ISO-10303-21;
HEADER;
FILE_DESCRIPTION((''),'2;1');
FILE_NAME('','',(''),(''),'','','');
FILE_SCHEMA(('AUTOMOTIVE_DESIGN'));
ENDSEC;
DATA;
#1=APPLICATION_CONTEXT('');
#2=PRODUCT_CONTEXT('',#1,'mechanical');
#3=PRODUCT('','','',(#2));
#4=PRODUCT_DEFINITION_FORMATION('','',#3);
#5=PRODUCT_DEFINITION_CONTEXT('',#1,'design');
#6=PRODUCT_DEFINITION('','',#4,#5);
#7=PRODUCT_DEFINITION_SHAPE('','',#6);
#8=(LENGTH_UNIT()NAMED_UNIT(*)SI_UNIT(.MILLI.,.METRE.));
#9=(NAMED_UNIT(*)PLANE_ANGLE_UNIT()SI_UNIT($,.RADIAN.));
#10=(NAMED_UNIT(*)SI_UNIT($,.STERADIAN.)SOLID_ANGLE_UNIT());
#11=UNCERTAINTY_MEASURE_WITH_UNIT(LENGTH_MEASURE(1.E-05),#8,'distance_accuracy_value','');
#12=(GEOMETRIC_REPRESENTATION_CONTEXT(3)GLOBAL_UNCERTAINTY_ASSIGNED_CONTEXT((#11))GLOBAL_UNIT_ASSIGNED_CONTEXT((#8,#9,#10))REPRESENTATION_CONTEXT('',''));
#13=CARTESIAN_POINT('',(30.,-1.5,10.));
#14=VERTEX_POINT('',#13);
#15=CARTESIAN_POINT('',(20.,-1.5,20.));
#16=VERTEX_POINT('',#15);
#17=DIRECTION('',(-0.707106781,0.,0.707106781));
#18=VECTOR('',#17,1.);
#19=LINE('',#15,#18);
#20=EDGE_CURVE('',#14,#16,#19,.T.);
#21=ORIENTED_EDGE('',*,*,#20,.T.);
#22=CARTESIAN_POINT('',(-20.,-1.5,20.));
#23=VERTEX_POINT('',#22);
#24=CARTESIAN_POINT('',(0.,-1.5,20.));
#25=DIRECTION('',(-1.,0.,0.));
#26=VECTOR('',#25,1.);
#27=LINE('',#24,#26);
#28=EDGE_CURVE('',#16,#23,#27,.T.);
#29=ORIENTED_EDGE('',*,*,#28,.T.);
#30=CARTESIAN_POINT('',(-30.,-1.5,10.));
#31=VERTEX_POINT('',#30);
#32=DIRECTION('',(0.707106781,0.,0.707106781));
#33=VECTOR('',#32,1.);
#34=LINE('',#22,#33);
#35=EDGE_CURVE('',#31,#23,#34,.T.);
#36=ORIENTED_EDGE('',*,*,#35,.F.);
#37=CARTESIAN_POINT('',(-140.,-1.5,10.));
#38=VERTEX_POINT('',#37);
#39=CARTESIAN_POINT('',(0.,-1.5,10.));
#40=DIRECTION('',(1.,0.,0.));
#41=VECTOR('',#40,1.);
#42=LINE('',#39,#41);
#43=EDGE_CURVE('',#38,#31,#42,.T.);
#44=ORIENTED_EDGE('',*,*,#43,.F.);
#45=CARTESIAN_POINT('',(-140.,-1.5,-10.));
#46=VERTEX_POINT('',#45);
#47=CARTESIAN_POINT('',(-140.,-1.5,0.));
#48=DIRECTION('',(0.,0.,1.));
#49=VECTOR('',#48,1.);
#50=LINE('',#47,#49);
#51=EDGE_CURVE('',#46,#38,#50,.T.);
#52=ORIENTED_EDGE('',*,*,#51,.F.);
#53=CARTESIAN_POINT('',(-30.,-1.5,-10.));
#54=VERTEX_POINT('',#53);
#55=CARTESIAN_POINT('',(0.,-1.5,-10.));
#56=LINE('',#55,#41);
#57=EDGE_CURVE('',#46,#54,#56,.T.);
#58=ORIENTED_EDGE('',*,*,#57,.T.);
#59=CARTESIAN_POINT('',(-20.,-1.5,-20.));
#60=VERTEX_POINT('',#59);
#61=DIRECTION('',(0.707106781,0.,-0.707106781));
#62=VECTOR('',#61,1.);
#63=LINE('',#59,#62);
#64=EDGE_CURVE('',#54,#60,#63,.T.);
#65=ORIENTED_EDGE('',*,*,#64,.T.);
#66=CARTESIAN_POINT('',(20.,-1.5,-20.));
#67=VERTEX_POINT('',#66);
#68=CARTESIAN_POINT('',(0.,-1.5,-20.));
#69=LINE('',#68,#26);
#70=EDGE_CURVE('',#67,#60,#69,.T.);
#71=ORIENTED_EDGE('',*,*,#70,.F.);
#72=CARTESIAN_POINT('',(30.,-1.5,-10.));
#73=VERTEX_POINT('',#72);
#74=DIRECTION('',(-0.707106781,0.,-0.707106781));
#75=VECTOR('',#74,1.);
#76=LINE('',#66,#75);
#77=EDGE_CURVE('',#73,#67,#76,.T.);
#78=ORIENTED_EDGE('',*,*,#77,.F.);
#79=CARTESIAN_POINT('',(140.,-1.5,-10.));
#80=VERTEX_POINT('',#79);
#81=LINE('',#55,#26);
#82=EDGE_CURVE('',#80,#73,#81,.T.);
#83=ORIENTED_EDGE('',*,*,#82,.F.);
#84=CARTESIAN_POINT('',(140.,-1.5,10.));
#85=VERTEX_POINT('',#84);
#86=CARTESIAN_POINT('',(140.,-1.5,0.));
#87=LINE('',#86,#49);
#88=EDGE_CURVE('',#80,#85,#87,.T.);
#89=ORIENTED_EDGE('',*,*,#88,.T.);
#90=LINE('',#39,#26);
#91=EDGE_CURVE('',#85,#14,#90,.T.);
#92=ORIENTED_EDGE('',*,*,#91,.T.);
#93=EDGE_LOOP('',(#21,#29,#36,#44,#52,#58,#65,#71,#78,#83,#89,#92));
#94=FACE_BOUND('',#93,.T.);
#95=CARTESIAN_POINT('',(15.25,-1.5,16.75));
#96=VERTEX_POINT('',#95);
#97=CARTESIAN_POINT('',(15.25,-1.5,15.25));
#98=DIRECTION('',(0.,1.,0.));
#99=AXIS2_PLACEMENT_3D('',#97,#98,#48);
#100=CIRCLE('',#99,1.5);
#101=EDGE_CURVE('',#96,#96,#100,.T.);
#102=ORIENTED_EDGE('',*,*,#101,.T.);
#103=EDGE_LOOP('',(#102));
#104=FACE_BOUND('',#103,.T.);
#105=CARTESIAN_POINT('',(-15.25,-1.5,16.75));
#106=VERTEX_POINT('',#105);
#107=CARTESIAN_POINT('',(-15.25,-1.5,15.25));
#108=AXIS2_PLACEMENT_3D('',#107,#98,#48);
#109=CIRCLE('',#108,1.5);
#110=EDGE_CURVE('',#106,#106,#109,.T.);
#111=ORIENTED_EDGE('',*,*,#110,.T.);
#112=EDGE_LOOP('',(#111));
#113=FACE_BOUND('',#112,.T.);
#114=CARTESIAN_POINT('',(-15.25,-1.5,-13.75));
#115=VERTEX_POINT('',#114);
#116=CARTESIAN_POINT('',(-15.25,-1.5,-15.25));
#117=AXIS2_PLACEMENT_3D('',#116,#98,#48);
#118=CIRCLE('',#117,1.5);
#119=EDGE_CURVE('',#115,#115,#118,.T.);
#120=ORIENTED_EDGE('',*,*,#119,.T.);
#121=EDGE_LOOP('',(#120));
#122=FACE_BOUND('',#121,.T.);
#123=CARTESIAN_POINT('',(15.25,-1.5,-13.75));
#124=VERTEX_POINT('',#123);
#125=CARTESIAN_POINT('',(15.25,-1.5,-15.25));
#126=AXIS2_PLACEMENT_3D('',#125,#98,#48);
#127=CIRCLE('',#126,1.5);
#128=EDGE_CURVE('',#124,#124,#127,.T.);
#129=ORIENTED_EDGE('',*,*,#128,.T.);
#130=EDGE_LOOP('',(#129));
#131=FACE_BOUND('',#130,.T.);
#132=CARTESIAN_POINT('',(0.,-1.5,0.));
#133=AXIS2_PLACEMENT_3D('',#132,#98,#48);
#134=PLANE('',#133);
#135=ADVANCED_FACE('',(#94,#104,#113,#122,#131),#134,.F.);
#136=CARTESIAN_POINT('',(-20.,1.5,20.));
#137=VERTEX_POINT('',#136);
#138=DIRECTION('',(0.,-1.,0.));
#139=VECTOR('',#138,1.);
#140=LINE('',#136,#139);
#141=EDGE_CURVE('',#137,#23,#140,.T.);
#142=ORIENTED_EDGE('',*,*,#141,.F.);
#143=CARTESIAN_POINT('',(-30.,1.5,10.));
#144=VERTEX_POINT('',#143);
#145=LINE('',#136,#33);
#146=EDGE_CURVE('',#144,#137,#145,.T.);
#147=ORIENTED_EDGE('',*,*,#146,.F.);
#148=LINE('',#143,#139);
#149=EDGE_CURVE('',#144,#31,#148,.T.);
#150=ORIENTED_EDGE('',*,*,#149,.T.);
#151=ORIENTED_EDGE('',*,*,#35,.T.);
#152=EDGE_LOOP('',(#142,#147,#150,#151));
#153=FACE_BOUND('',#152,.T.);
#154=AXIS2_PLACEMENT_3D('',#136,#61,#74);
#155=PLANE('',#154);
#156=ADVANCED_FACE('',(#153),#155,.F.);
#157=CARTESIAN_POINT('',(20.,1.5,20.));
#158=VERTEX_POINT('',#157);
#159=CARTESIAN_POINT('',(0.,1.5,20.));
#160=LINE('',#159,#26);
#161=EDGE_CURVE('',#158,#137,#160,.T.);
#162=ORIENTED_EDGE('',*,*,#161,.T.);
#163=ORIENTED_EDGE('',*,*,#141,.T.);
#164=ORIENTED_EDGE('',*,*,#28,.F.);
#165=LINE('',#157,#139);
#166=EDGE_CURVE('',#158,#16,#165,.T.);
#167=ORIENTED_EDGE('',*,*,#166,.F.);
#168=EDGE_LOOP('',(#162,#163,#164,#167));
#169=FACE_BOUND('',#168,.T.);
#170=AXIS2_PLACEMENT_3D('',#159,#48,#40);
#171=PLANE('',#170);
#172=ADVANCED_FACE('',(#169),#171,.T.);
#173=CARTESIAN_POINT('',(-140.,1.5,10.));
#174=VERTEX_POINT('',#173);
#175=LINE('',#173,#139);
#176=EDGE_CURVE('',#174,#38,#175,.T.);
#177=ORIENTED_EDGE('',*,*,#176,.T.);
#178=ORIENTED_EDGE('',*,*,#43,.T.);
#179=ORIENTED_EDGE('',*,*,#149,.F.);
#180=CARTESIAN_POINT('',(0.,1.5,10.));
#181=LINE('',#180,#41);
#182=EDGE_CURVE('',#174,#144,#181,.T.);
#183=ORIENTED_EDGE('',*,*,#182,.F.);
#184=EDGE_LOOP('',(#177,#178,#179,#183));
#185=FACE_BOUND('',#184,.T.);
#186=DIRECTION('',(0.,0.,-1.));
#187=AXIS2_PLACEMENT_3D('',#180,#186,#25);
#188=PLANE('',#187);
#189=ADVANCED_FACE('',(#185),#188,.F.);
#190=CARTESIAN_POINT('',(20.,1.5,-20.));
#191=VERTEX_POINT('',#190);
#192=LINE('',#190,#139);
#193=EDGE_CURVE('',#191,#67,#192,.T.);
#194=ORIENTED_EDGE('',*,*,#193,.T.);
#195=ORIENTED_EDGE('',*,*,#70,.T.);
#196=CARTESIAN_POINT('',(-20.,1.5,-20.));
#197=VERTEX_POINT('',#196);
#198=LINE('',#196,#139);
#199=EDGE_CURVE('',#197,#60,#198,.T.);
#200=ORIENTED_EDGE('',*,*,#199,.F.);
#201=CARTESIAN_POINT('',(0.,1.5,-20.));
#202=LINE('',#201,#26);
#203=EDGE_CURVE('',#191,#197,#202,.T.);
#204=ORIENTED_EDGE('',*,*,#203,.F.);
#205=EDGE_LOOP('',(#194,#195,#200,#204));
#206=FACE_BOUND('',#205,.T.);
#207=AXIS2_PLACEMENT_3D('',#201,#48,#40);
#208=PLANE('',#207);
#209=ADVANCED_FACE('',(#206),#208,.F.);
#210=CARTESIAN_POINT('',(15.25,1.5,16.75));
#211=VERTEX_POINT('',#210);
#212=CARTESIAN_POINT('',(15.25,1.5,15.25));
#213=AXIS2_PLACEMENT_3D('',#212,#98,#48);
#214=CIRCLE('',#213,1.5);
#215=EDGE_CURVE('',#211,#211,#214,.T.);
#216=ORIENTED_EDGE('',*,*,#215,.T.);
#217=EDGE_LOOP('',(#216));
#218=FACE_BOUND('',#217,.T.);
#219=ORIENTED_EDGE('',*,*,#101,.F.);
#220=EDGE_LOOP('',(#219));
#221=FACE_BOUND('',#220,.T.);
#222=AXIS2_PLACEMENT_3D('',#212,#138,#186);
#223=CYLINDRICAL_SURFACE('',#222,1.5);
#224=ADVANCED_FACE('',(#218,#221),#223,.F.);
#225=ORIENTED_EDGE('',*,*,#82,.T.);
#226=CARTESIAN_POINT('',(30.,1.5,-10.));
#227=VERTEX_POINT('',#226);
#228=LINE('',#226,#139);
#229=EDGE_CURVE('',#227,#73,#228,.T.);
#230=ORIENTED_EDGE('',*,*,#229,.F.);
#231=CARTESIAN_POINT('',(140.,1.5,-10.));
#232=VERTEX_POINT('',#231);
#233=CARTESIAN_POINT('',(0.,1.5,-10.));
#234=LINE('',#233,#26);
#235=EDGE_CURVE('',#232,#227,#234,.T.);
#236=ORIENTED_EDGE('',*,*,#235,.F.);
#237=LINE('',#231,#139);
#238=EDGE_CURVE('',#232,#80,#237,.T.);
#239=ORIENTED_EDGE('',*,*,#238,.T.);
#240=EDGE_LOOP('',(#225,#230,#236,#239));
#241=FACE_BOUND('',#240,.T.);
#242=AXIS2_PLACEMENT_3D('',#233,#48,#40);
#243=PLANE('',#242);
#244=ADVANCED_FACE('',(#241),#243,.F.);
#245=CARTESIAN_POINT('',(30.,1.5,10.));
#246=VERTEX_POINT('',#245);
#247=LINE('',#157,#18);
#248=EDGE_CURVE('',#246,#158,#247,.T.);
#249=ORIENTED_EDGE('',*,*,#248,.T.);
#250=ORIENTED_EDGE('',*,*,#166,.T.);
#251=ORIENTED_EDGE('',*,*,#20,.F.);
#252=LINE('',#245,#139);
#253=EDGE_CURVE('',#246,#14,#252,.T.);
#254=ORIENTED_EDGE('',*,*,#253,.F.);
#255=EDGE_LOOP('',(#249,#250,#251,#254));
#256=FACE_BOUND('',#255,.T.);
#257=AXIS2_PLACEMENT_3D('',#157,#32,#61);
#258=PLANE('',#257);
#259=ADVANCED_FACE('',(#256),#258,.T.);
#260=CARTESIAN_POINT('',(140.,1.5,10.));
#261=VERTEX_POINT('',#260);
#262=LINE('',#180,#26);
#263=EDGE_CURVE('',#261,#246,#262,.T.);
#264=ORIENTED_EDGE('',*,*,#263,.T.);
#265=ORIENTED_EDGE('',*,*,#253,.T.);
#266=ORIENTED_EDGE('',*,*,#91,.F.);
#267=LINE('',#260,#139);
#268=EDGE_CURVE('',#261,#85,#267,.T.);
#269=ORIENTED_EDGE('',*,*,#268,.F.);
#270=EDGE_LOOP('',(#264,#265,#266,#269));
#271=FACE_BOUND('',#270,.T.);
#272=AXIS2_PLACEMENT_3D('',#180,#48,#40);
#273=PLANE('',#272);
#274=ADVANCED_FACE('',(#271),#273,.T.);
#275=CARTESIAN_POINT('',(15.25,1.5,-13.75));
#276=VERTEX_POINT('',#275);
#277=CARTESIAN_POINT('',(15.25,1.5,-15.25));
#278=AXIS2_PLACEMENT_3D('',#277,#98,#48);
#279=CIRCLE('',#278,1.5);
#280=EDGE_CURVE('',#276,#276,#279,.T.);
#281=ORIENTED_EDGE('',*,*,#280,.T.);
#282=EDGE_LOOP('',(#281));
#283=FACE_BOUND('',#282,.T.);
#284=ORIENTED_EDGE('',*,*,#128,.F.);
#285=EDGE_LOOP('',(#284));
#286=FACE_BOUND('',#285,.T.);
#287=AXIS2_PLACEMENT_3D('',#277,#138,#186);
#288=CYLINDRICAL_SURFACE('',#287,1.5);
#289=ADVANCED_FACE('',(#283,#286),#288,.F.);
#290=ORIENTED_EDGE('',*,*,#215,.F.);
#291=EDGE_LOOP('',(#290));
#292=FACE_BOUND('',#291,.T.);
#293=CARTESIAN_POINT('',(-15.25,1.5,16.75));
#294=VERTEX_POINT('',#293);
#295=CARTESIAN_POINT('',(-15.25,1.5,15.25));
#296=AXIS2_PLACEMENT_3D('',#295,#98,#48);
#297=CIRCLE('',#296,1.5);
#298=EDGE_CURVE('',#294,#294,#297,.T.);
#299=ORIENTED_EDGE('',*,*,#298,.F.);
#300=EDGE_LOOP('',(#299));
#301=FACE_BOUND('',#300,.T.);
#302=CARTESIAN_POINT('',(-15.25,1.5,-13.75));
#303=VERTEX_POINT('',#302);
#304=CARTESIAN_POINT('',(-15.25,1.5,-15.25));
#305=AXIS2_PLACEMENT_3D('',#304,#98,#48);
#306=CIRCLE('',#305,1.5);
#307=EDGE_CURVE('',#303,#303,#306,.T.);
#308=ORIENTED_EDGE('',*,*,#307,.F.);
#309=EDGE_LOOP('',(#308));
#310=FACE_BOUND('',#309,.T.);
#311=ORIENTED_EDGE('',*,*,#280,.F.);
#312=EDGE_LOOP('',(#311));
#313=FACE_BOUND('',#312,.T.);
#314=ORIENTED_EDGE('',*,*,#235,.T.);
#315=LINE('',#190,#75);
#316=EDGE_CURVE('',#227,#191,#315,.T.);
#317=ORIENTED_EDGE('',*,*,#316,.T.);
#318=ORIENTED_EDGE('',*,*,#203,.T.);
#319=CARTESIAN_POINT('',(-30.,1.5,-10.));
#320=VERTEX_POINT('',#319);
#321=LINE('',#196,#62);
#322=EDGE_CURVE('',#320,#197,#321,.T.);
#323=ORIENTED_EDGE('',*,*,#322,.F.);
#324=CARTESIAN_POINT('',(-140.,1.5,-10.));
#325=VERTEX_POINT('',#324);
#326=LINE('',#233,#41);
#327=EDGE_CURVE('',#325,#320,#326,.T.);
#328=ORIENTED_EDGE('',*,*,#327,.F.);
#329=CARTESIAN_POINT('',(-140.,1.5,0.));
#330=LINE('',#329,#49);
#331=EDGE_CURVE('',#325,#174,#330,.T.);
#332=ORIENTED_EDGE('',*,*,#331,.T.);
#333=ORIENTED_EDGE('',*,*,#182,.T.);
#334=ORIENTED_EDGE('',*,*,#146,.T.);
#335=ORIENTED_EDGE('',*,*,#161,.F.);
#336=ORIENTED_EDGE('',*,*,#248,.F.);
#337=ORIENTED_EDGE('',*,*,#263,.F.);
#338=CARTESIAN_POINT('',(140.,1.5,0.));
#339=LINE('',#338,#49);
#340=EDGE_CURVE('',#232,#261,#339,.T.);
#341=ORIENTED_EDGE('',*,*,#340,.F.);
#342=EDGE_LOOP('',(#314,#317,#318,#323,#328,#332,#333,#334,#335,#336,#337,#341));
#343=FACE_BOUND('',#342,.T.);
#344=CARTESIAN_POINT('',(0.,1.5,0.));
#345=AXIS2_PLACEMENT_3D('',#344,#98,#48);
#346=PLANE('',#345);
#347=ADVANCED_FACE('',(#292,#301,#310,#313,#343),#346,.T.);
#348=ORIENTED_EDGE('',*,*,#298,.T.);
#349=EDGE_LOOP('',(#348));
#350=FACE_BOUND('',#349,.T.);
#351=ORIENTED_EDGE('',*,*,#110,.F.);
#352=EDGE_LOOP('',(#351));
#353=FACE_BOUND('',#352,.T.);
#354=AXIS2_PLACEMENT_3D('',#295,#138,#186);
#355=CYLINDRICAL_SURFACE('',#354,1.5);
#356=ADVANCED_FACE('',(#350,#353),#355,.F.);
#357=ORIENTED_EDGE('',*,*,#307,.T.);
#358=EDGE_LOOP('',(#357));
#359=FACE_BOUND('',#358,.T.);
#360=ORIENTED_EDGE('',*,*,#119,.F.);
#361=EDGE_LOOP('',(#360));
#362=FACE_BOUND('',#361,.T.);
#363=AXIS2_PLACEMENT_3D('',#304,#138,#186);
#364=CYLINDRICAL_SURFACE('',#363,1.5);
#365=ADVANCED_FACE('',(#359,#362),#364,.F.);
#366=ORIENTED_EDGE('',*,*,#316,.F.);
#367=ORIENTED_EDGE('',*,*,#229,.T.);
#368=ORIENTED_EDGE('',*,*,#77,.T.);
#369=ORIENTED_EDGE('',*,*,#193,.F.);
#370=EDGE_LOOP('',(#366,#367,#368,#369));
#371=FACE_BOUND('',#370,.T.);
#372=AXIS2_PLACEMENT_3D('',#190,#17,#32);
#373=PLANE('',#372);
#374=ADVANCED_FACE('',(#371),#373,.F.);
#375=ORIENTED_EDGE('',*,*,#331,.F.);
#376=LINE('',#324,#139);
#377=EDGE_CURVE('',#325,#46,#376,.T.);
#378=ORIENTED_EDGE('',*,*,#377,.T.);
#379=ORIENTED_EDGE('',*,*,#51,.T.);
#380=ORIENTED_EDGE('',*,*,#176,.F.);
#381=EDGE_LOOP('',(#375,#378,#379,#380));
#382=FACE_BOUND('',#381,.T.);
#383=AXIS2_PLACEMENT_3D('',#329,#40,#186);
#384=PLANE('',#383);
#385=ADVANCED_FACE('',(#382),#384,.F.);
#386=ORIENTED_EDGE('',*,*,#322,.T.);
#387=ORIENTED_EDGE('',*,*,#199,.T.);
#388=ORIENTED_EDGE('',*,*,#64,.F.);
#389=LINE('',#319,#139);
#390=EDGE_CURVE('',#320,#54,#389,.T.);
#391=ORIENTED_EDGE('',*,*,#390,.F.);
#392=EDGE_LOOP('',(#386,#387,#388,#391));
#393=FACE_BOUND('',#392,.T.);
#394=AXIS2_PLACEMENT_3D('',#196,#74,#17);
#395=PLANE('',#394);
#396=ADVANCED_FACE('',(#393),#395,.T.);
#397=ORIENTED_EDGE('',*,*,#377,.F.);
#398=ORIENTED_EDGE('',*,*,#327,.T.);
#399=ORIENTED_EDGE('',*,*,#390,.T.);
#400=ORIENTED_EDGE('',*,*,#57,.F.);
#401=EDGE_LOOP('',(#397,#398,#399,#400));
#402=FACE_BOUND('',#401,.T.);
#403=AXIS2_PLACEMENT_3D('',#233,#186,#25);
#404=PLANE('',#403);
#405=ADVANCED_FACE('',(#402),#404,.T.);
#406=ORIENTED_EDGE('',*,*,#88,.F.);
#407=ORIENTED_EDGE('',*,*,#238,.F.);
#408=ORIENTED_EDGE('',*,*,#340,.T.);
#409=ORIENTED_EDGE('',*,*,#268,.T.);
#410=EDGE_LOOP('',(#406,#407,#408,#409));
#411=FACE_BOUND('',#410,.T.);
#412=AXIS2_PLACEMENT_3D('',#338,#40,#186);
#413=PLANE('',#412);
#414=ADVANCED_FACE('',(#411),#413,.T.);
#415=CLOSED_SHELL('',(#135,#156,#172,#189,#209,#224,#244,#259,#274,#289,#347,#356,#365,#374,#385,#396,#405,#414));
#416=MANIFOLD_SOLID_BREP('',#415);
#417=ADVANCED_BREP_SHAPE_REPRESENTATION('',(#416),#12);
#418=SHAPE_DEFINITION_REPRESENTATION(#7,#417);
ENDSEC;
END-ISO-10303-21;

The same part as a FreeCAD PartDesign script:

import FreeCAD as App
import Part
import Sketcher
Q = App.Units.Quantity


def add_polygon(sketch, points):
    """Adds a closed chain of lines whose ends are joined by coincident constraints."""
    first, n = sketch.GeometryCount, len(points)
    for a, b in zip(points, points[1:] + points[:1]):
        sketch.addGeometry(Part.LineSegment(App.Vector(*a, 0), App.Vector(*b, 0)), False)
    for i in range(n):
        sketch.addConstraint(Sketcher.Constraint("Coincident", first + i, 2, first + (i + 1) % n, 1))

doc = App.newDocument("Part")
body = doc.addObject("PartDesign::Body", "Body")

# Sketch on XZ plane
sketch1 = body.newObject("Sketcher::SketchObject", "Sketch")
sketch1.AttachmentSupport = (doc.getObject("XZ_Plane"), [""])
sketch1.MapMode = "FlatFace"
add_polygon(sketch1, [(30, -10), (20, -20), (-20, -20), (-30, -10), (-140, -10), (-140, 10), (-30, 10), (-20, 20), (20, 20), (30, 10), (140, 10), (140, -10)])  # lines 0-11
sketch1.addGeometry(Part.Circle(App.Vector(-15.25, 15.25, 0), App.Vector(0, 0, 1), 1.5), False)  # 12
sketch1.addGeometry(Part.Circle(App.Vector(15.25, 15.25, 0), App.Vector(0, 0, 1), 1.5), False)  # 13
sketch1.addGeometry(Part.Circle(App.Vector(-15.25, -15.25, 0), App.Vector(0, 0, 1), 1.5), False)  # 14
sketch1.addGeometry(Part.Circle(App.Vector(15.25, -15.25, 0), App.Vector(0, 0, 1), 1.5), False)  # 15
sketch1.addConstraint([
    Sketcher.Constraint("Horizontal", 1),
    Sketcher.Constraint("Horizontal", 3),
    Sketcher.Constraint("Vertical", 4),
    Sketcher.Constraint("Horizontal", 5),
    Sketcher.Constraint("Horizontal", 7),
    Sketcher.Constraint("Horizontal", 9),
    Sketcher.Constraint("Vertical", 10),
    Sketcher.Constraint("Horizontal", 11),
    Sketcher.Constraint("Equal", 12, 13),
    Sketcher.Constraint("Equal", 13, 14),
    Sketcher.Constraint("Equal", 14, 15),
    Sketcher.Constraint("Symmetric", 13, 3, 14, 3, -1, 1),
    Sketcher.Constraint("Symmetric", 12, 3, 15, 3, -1, 1),
    Sketcher.Constraint("Symmetric", 0, 2, 6, 2, -1, 1),
    Sketcher.Constraint("Symmetric", 2, 2, 8, 2, -1, 1),
    Sketcher.Constraint("Symmetric", 4, 2, 10, 2, -1, 1),
    Sketcher.Constraint("Symmetric", 12, 3, 13, 3, -2),
    Sketcher.Constraint("Symmetric", 5, 2, 8, 2, -2),
    Sketcher.Constraint("Perpendicular", 0, 2),
    Sketcher.Constraint("Perpendicular", 2, 6),
    Sketcher.Constraint("Perpendicular", 6, 8),
    Sketcher.Constraint("Vertical", 1, 2, 6, 2),
    Sketcher.Constraint("Diameter", 12, Q("3 mm")),
    Sketcher.Constraint("DistanceX", 1, 2, 1, 1, Q("40 mm")),
    Sketcher.Constraint("DistanceX", 3, 2, 3, 1, Q("110 mm")),
    Sketcher.Constraint("DistanceY", 4, 1, 4, 2, Q("20 mm")),
    Sketcher.Constraint("DistanceY", 0, 2, -1, 1, Q("20 mm")),
    Sketcher.Constraint("DistanceX", 12, 3, 13, 3, Q("30.5 mm")),
    Sketcher.Constraint("DistanceY", 14, 3, 12, 3, Q("30.5 mm")),
])
pad1 = body.newObject("PartDesign::Pad", "Pad")
pad1.Profile = sketch1
pad1.Length = 3
pad1.Midplane = True

doc.recompute()
